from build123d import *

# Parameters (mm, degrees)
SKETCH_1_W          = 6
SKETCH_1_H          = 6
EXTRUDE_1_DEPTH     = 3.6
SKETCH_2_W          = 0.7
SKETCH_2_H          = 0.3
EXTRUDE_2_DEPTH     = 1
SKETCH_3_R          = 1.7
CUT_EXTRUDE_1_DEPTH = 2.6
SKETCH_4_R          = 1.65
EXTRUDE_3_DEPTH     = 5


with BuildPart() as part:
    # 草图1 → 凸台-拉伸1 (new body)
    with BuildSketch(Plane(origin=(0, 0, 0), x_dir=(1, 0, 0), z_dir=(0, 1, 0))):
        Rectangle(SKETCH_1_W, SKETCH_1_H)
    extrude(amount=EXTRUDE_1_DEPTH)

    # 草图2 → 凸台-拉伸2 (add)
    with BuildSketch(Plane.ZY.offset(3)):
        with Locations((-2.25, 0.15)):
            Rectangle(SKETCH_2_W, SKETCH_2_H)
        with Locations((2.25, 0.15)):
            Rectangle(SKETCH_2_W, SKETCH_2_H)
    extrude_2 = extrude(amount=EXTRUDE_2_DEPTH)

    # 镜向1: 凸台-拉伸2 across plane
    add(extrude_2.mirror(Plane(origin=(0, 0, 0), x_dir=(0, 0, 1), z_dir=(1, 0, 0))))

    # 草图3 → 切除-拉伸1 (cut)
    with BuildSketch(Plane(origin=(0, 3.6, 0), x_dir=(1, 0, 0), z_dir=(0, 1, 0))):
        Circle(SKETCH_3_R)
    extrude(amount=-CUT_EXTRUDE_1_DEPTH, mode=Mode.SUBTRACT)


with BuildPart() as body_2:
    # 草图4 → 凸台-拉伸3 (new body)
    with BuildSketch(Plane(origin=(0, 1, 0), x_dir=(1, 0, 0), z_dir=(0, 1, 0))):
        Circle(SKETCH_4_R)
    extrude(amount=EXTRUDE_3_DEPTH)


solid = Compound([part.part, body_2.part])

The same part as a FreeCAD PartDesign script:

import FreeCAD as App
import Part
import Sketcher

V = App.Vector

doc = App.newDocument("Part")
params = doc.addObject("Spreadsheet::Sheet", "Params")
for row, (alias, value) in enumerate([
    ("sketch1_width", "6 mm"),
    ("pad1_length", "3.6 mm"),
    ("sketch2_width", "0.3 mm"),
    ("sketch2_height", "0.7 mm"),
    ("pad2_length", "1 mm"),
    ("sketch3_diameter", "3.4 mm"),
    ("pocket1_length", "2.6 mm"),
    ("sketch4_diameter", "3.3 mm"),
    ("pad3_length", "5 mm"),
], start=1):
    params.set(f"A{row}", alias)
    params.set(f"B{row}", "=" + value)
    params.setAlias(f"B{row}", alias)

body = doc.addObject("PartDesign::Body", "Body")

sketch1 = body.newObject("Sketcher::SketchObject", "Sketch")
sketch1.AttachmentSupport = (doc.getObject("XZ_Plane"), [""])
sketch1.MapMode = "FlatFace"
sketch1.addGeometry(Part.LineSegment(V(-3, -3, 0), V(-3, 3, 0)), False)
sketch1.addGeometry(Part.LineSegment(V(-3, 3, 0), V(3, 3, 0)), False)
sketch1.addGeometry(Part.LineSegment(V(3, 3, 0), V(3, -3, 0)), False)
sketch1.addGeometry(Part.LineSegment(V(3, -3, 0), V(-3, -3, 0)), False)
sketch1.addConstraint(Sketcher.Constraint("Coincident", 0, 2, 1, 1))
sketch1.addConstraint(Sketcher.Constraint("Coincident", 1, 2, 2, 1))
sketch1.addConstraint(Sketcher.Constraint("Coincident", 2, 2, 3, 1))
sketch1.addConstraint(Sketcher.Constraint("Coincident", 3, 2, 0, 1))
sketch1.addConstraint(Sketcher.Constraint("Vertical", 0))
sketch1.addConstraint(Sketcher.Constraint("Horizontal", 1))
sketch1.addConstraint(Sketcher.Constraint("Vertical", 2))
sketch1.addConstraint(Sketcher.Constraint("Horizontal", 3))
sketch1.addConstraint(Sketcher.Constraint("Symmetric", 0, 2, 2, 2, -1, 1))
sketch1.addConstraint(Sketcher.Constraint("Equal", 3, 0))
sketch1.addConstraint(Sketcher.Constraint("DistanceX", 1, 1, 1, 2, 6.0))
sketch1.setExpression("Constraints[10]", "Params.sketch1_width")
pad1 = body.newObject("PartDesign::Pad", "Pad")
pad1.Profile = sketch1
pad1.setExpression("Length", "Params.pad1_length")
pad1.Reversed = True

sketch2 = body.newObject("Sketcher::SketchObject", "Sketch001")
sketch2.AttachmentSupport = (doc.getObject("YZ_Plane"), [""])
sketch2.MapMode = "FlatFace"
sketch2.AttachmentOffset = App.Placement(V(0, 0, -3), App.Rotation())
sketch2.addGeometry(Part.LineSegment(V(0.3, -2.6, 0), V(0, -2.6, 0)), False)
sketch2.addGeometry(Part.LineSegment(V(0, -2.6, 0), V(0, -1.9, 0)), False)
sketch2.addGeometry(Part.LineSegment(V(0, -1.9, 0), V(0.3, -1.9, 0)), False)
sketch2.addGeometry(Part.LineSegment(V(0.3, -1.9, 0), V(0.3, -2.6, 0)), False)
sketch2.addGeometry(Part.LineSegment(V(0.3, 1.9, 0), V(0, 1.9, 0)), False)
sketch2.addGeometry(Part.LineSegment(V(0, 1.9, 0), V(0, 2.6, 0)), False)
sketch2.addGeometry(Part.LineSegment(V(0, 2.6, 0), V(0.3, 2.6, 0)), False)
sketch2.addGeometry(Part.LineSegment(V(0.3, 2.6, 0), V(0.3, 1.9, 0)), False)
sketch2.addConstraint(Sketcher.Constraint("Coincident", 0, 2, 1, 1))
sketch2.addConstraint(Sketcher.Constraint("Coincident", 1, 2, 2, 1))
sketch2.addConstraint(Sketcher.Constraint("Coincident", 2, 2, 3, 1))
sketch2.addConstraint(Sketcher.Constraint("Coincident", 3, 2, 0, 1))
sketch2.addConstraint(Sketcher.Constraint("Coincident", 4, 2, 5, 1))
sketch2.addConstraint(Sketcher.Constraint("Coincident", 5, 2, 6, 1))
sketch2.addConstraint(Sketcher.Constraint("Coincident", 6, 2, 7, 1))
sketch2.addConstraint(Sketcher.Constraint("Coincident", 7, 2, 4, 1))
sketch2.addConstraint(Sketcher.Constraint("Horizontal", 0))
sketch2.addConstraint(Sketcher.Constraint("Vertical", 1))
sketch2.addConstraint(Sketcher.Constraint("Horizontal", 2))
sketch2.addConstraint(Sketcher.Constraint("Vertical", 3))
sketch2.addConstraint(Sketcher.Constraint("Horizontal", 4))
sketch2.addConstraint(Sketcher.Constraint("Vertical", 5))
sketch2.addConstraint(Sketcher.Constraint("Horizontal", 6))
sketch2.addConstraint(Sketcher.Constraint("Vertical", 7))
sketch2.addConstraint(Sketcher.Constraint("Symmetric", 1, 2, 4, 2, -1, 1))
sketch2.addConstraint(Sketcher.Constraint("Symmetric", 0, 2, 5, 2, -1))
sketch2.addConstraint(Sketcher.Constraint("Vertical", 3, 2, 6, 2))
sketch2.addConstraint(Sketcher.Constraint("DistanceX", 0, 2, 0, 1, 0.3))
sketch2.addConstraint(Sketcher.Constraint("DistanceY", 1, 1, 1, 2, 0.7))
sketch2.addConstraint(Sketcher.Constraint("DistanceY", 0, 2, -1, 1, 2.6))
sketch2.setExpression("Constraints[19]", "Params.sketch2_width")
sketch2.setExpression("Constraints[20]", "Params.sketch2_height")
pad2 = body.newObject("PartDesign::Pad", "Pad001")
pad2.Profile = sketch2
pad2.setExpression("Length", "Params.pad2_length")
pad2.Reversed = True
doc.recompute()

mirrored = body.newObject("PartDesign::Mirrored", "Mirrored")
mirrored.Originals = [pad2]
mirrored.MirrorPlane = (doc.getObject("YZ_Plane"), [""])
body.Tip = mirrored

sketch3 = body.newObject("Sketcher::SketchObject", "Sketch002")
sketch3.AttachmentSupport = (doc.getObject("XZ_Plane"), [""])
sketch3.MapMode = "FlatFace"
sketch3.AttachmentOffset = App.Placement(V(0, 0, -3.6), App.Rotation())
sketch3.addGeometry(Part.Circle(V(0, 0, 0), V(0, 0, 1), 1.7), False)
sketch3.addConstraint(Sketcher.Constraint("Coincident", 0, 3, -1, 1))
sketch3.addConstraint(Sketcher.Constraint("Diameter", 0, 3.4))
sketch3.setExpression("Constraints[1]", "Params.sketch3_diameter")
pocket1 = body.newObject("PartDesign::Pocket", "Pocket")
pocket1.Profile = sketch3
pocket1.setExpression("Length", "Params.pocket1_length")
pocket1.Reversed = True
body2 = doc.addObject("PartDesign::Body", "Body001")

sketch4 = body2.newObject("Sketcher::SketchObject", "Sketch003")
sketch4.AttachmentSupport = (doc.getObject("XZ_Plane001"), [""])
sketch4.MapMode = "FlatFace"
sketch4.AttachmentOffset = App.Placement(V(0, 0, -1), App.Rotation())
sketch4.addGeometry(Part.Circle(V(0, 0, 0), V(0, 0, 1), 1.6), False)
sketch4.addConstraint(Sketcher.Constraint("Coincident", 0, 3, -1, 1))
sketch4.addConstraint(Sketcher.Constraint("Diameter", 0, 3.3))
sketch4.setExpression("Constraints[1]", "Params.sketch4_diameter")
pad3 = body2.newObject("PartDesign::Pad", "Pad002")
pad3.Profile = sketch4
pad3.setExpression("Length", "Params.pad3_length")
pad3.Reversed = True

doc.recompute()
